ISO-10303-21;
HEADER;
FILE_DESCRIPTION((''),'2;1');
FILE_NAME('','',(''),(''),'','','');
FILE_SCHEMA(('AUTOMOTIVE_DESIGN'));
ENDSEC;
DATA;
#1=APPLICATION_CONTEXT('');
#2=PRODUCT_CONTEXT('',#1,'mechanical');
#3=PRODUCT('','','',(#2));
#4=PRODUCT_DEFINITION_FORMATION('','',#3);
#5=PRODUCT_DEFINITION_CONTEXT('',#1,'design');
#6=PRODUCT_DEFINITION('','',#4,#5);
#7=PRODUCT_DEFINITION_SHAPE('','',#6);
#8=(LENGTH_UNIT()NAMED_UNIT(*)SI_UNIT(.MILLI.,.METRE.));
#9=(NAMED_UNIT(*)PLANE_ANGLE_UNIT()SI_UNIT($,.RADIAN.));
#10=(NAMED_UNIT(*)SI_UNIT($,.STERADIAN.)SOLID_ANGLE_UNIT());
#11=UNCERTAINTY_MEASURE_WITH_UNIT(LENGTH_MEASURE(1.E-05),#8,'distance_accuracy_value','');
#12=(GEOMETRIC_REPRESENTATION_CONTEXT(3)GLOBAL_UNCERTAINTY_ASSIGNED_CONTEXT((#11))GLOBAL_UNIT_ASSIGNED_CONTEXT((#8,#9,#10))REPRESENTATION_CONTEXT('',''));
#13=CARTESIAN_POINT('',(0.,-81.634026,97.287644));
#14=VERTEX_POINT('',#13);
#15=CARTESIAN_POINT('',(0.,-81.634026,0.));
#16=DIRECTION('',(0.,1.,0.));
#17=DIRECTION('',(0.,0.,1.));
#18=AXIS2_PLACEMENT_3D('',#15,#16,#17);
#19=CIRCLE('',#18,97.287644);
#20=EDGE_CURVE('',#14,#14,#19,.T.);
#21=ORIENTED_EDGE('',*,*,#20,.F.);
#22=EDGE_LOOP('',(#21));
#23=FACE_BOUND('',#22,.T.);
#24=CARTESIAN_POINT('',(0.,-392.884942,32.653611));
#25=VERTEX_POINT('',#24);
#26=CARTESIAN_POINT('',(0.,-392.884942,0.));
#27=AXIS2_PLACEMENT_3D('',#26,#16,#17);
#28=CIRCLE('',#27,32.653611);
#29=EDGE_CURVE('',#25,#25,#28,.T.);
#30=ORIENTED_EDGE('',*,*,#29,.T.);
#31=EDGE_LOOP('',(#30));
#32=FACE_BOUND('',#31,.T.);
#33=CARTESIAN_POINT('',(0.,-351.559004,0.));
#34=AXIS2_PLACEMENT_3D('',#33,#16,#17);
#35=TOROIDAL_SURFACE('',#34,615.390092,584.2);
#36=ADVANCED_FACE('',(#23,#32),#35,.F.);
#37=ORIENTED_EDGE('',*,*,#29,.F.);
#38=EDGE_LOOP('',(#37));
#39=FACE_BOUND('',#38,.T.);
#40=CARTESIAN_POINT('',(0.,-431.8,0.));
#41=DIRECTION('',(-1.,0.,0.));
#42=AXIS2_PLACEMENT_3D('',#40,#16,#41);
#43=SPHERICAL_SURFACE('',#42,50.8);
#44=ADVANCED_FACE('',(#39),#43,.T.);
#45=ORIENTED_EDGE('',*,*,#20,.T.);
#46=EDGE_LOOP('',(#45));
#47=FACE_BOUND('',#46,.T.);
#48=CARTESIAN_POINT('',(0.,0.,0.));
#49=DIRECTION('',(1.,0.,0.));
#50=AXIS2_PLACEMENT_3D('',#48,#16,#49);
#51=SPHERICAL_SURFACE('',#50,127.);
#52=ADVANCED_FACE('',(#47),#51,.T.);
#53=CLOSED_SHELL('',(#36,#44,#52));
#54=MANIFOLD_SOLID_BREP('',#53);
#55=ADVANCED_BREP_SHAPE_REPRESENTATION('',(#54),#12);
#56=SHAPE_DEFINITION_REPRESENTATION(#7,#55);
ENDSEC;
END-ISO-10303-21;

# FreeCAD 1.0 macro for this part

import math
import FreeCAD as App
import Part
import Sketcher

V = App.Vector
Q = App.Units.Quantity

doc = App.newDocument("Part")
body = doc.addObject("PartDesign::Body", "Body")

sketch1 = body.newObject("Sketcher::SketchObject", "Sketch")
sketch1.AttachmentSupport = (doc.getObject("XY_Plane"), [""])
sketch1.MapMode = "FlatFace"
sketch1.addGeometry([
    Part.LineSegment(V(0, 127, 0), V(0, -483, 0)),
    Part.ArcOfCircle(Part.Circle(V(0, -432, 0), V(0, 0, 1), 51), math.radians(-90), math.radians(50)),
    Part.ArcOfCircle(Part.Circle(V(615, -352, 0), V(0, 0, 1), 584), math.radians(152), math.radians(184)),
    Part.ArcOfCircle(Part.Circle(V(0, 0, 0), V(0, 0, 1), 127), math.radians(-40), math.radians(90)),
], False)
sketch1.addConstraint([
    Sketcher.Constraint("Coincident", 0, 2, 1, 1),
    Sketcher.Constraint("Coincident", 1, 2, 2, 2),
    Sketcher.Constraint("Coincident", 2, 1, 3, 1),
    Sketcher.Constraint("Coincident", 3, 2, 0, 1),
    Sketcher.Constraint("Vertical", 0),
    Sketcher.Constraint("Coincident", 3, 3, -1, 1),
    Sketcher.Constraint("PointOnObject", 1, 3, -2),
    Sketcher.Constraint("PointOnObject", 0, 2, -2),
    Sketcher.Constraint("Radius", 1, Q("2 in")),
    Sketcher.Constraint("Radius", 2, Q("23 in")),
    Sketcher.Constraint("Radius", 3, Q("5 in")),
    Sketcher.Constraint("DistanceY", 0, 2, 0, 1, Q("24 in")),
    Sketcher.Constraint("DistanceX", -1, 1, 1, 2, Q("32.653611 mm")),
    Sketcher.Constraint("DistanceY", 1, 2, 2, 3, Q("41.325938 mm")),
])
revolution = body.newObject("PartDesign::Revolution", "Revolution")
revolution.Profile = sketch1
revolution.ReferenceAxis = (sketch1, ["V_Axis"])
revolution.Angle = 360

doc.recompute()
